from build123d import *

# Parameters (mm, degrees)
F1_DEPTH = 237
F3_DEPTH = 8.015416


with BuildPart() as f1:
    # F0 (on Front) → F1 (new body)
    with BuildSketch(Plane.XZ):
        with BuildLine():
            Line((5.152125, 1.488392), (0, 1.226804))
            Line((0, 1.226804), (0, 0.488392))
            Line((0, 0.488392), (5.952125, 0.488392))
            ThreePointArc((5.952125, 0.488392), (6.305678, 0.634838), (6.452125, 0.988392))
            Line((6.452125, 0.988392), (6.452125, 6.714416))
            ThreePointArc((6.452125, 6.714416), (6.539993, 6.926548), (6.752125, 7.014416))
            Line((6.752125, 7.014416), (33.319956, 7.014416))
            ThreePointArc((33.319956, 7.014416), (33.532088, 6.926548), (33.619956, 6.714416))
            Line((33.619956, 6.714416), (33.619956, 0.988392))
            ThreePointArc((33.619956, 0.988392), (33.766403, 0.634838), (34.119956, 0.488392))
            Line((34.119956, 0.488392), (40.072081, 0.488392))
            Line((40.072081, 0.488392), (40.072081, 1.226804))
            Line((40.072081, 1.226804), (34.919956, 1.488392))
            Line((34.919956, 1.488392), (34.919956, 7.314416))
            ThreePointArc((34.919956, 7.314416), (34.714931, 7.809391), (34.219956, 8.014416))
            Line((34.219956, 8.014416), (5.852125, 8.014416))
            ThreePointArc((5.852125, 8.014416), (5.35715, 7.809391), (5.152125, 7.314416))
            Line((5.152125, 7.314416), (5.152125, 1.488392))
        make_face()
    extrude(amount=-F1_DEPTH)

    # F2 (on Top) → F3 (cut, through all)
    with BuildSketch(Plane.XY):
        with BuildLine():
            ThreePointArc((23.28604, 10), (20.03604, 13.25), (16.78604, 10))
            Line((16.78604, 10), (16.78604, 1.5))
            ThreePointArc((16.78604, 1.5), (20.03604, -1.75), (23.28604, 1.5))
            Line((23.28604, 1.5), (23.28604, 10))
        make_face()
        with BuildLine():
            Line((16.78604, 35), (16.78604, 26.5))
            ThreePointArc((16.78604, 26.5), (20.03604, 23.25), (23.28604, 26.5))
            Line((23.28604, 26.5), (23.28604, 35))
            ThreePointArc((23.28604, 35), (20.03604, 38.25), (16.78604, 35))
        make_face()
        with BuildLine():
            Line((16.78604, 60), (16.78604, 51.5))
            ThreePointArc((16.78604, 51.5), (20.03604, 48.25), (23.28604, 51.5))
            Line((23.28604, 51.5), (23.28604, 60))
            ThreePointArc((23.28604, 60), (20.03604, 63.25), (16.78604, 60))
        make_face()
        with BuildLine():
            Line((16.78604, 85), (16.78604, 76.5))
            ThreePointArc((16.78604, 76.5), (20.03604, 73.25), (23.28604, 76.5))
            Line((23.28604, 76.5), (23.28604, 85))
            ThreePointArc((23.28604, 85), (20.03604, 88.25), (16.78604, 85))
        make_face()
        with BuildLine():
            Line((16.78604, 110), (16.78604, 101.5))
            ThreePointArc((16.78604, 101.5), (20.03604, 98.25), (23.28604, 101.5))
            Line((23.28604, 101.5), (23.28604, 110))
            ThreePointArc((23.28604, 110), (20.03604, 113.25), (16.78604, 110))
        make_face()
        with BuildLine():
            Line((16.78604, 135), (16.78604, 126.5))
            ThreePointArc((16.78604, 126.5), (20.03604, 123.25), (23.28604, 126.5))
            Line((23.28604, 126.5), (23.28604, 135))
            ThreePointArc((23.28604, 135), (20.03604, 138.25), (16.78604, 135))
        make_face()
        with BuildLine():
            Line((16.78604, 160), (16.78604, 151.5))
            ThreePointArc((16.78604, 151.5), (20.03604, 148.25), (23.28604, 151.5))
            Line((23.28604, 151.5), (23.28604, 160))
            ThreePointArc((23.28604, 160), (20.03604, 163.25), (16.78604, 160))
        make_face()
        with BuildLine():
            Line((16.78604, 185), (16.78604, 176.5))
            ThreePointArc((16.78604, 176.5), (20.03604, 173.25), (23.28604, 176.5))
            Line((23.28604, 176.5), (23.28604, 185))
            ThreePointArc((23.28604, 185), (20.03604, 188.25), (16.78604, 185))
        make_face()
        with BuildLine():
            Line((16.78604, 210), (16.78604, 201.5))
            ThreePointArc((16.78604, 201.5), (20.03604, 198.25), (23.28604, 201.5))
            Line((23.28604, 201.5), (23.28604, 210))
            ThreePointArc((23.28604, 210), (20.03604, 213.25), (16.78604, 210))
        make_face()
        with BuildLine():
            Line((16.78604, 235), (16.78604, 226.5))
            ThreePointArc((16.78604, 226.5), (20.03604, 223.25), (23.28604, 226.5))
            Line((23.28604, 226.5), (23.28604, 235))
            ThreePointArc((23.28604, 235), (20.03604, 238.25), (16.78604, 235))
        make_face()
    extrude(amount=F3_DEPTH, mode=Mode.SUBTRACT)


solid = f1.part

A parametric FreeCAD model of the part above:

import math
import FreeCAD as App
import Part
import Sketcher

V = App.Vector
Q = App.Units.Quantity

doc = App.newDocument("Part")
body = doc.addObject("PartDesign::Body", "Body")

sketch1 = body.newObject("Sketcher::SketchObject", "Sketch")
sketch1.AttachmentSupport = (doc.getObject("XZ_Plane"), [""])
sketch1.MapMode = "FlatFace"
sketch1.addGeometry(Part.LineSegment(V(5.15, 1.49, 0), V(0, 1.23, 0)), False)
sketch1.addGeometry(Part.LineSegment(V(0, 1.23, 0), V(0, 0.49, 0)), False)
sketch1.addGeometry(Part.LineSegment(V(0, 0.49, 0), V(5.95, 0.49, 0)), False)
sketch1.addGeometry(Part.ArcOfCircle(Part.Circle(V(5.95, 0.99, 0), V(0, 0, 1), 0.5), math.radians(-90), math.radians(0)), False)
sketch1.addGeometry(Part.LineSegment(V(6.45, 0.99, 0), V(6.45, 6.71, 0)), False)
sketch1.addGeometry(Part.ArcOfCircle(Part.Circle(V(6.75, 6.71, 0), V(0, 0, 1), 0.3), math.radians(90), math.radians(180)), False)
sketch1.addGeometry(Part.LineSegment(V(6.75, 7.01, 0), V(33.32, 7.01, 0)), False)
sketch1.addGeometry(Part.ArcOfCircle(Part.Circle(V(33.32, 6.71, 0), V(0, 0, 1), 0.3), math.radians(0), math.radians(90)), False)
sketch1.addGeometry(Part.LineSegment(V(33.62, 6.71, 0), V(33.62, 0.99, 0)), False)
sketch1.addGeometry(Part.ArcOfCircle(Part.Circle(V(34.12, 0.99, 0), V(0, 0, 1), 0.5), math.radians(180), math.radians(270)), False)
sketch1.addGeometry(Part.LineSegment(V(34.12, 0.49, 0), V(40.07, 0.49, 0)), False)
sketch1.addGeometry(Part.LineSegment(V(40.07, 0.49, 0), V(40.07, 1.23, 0)), False)
sketch1.addGeometry(Part.LineSegment(V(40.07, 1.23, 0), V(34.92, 1.49, 0)), False)
sketch1.addGeometry(Part.LineSegment(V(34.92, 1.49, 0), V(34.92, 7.31, 0)), False)
sketch1.addGeometry(Part.ArcOfCircle(Part.Circle(V(34.22, 7.31, 0), V(0, 0, 1), 0.7), math.radians(0), math.radians(90)), False)
sketch1.addGeometry(Part.LineSegment(V(34.22, 8.01, 0), V(5.85, 8.01, 0)), False)
sketch1.addGeometry(Part.ArcOfCircle(Part.Circle(V(5.85, 7.31, 0), V(0, 0, 1), 0.7), math.radians(90), math.radians(180)), False)
sketch1.addGeometry(Part.LineSegment(V(5.15, 7.31, 0), V(5.15, 1.49, 0)), False)
sketch1.addConstraint(Sketcher.Constraint("Coincident", 0, 2, 1, 1))
sketch1.addConstraint(Sketcher.Constraint("Coincident", 1, 2, 2, 1))
sketch1.addConstraint(Sketcher.Constraint("Tangent", 2, 2, 3, 1))
sketch1.addConstraint(Sketcher.Constraint("Tangent", 3, 2, 4, 1))
sketch1.addConstraint(Sketcher.Constraint("Tangent", 4, 2, 5, 2))
sketch1.addConstraint(Sketcher.Constraint("Tangent", 5, 1, 6, 1))
sketch1.addConstraint(Sketcher.Constraint("Tangent", 6, 2, 7, 2))
sketch1.addConstraint(Sketcher.Constraint("Tangent", 7, 1, 8, 1))
sketch1.addConstraint(Sketcher.Constraint("Tangent", 8, 2, 9, 1))
sketch1.addConstraint(Sketcher.Constraint("Tangent", 9, 2, 10, 1))
sketch1.addConstraint(Sketcher.Constraint("Coincident", 10, 2, 11, 1))
sketch1.addConstraint(Sketcher.Constraint("Coincident", 11, 2, 12, 1))
sketch1.addConstraint(Sketcher.Constraint("Coincident", 12, 2, 13, 1))
sketch1.addConstraint(Sketcher.Constraint("Tangent", 13, 2, 14, 1))
sketch1.addConstraint(Sketcher.Constraint("Tangent", 14, 2, 15, 1))
sketch1.addConstraint(Sketcher.Constraint("Tangent", 15, 2, 16, 1))
sketch1.addConstraint(Sketcher.Constraint("Tangent", 16, 2, 17, 1))
sketch1.addConstraint(Sketcher.Constraint("Coincident", 17, 2, 0, 1))
sketch1.addConstraint(Sketcher.Constraint("Vertical", 1))
sketch1.addConstraint(Sketcher.Constraint("Horizontal", 2))
sketch1.addConstraint(Sketcher.Constraint("Vertical", 4))
sketch1.addConstraint(Sketcher.Constraint("Horizontal", 6))
sketch1.addConstraint(Sketcher.Constraint("Vertical", 8))
sketch1.addConstraint(Sketcher.Constraint("Horizontal", 10))
sketch1.addConstraint(Sketcher.Constraint("Vertical", 11))
sketch1.addConstraint(Sketcher.Constraint("Vertical", 13))
sketch1.addConstraint(Sketcher.Constraint("Horizontal", 15))
sketch1.addConstraint(Sketcher.Constraint("Vertical", 17))
sketch1.addConstraint(Sketcher.Constraint("Equal", 5, 7))
sketch1.addConstraint(Sketcher.Constraint("Equal", 3, 9))
sketch1.addConstraint(Sketcher.Constraint("Equal", 14, 16))
sketch1.addConstraint(Sketcher.Constraint("PointOnObject", 0, 2, -2))
sketch1.addConstraint(Sketcher.Constraint("Horizontal", 3, 3, 9, 3))
sketch1.addConstraint(Sketcher.Constraint("Horizontal", 0, 2, 11, 2))
sketch1.addConstraint(Sketcher.Constraint("Horizontal", 12, 2, 17, 2))
sketch1.addConstraint(Sketcher.Constraint("Equal", 2, 10))
sketch1.addConstraint(Sketcher.Constraint("Equal", 0, 12))
sketch1.addConstraint(Sketcher.Constraint("Radius", 3, Q("0.5 mm")))
sketch1.addConstraint(Sketcher.Constraint("Radius", 5, Q("0.3 mm")))
sketch1.addConstraint(Sketcher.Constraint("Radius", 14, Q("0.699999 mm")))
sketch1.addConstraint(Sketcher.Constraint("DistanceY", 9, 2, 12, 2, Q("1 mm")))
sketch1.addConstraint(Sketcher.Constraint("DistanceY", 6, 2, 14, 2, Q("1 mm")))
sketch1.addConstraint(Sketcher.Constraint("DistanceX", 7, 3, 14, 3, Q("0.900001 mm")))
sketch1.addConstraint(Sketcher.Constraint("DistanceX", 6, 1, 6, 2, Q("26.567831 mm")))
sketch1.addConstraint(Sketcher.Constraint("Distance", 0, Q("5.158762 mm")))
sketch1.addConstraint(Sketcher.Constraint("DistanceX", 2, 1, 2, 2, Q("5.952125 mm")))
sketch1.addConstraint(Sketcher.Constraint("DistanceY", 4, 1, 4, 2, Q("5.726024 mm")))
sketch1.addConstraint(Sketcher.Constraint("DistanceY", -1, 1, 3, 3, Q("0.988392 mm")))
pad1 = body.newObject("PartDesign::Pad", "Pad")
pad1.Profile = sketch1
pad1.Length = 237
pad1.Reversed = True

sketch2 = body.newObject("Sketcher::SketchObject", "Sketch001")
sketch2.AttachmentSupport = (doc.getObject("XY_Plane"), [""])
sketch2.MapMode = "FlatFace"
sketch2.addGeometry(Part.ArcOfCircle(Part.Circle(V(20, 10, 0), V(0, 0, 1), 3.2), math.radians(0), math.radians(180)), False)
sketch2.addGeometry(Part.LineSegment(V(16.8, 10, 0), V(16.8, 1.5, 0)), False)
sketch2.addGeometry(Part.ArcOfCircle(Part.Circle(V(20, 1.5, 0), V(0, 0, 1), 3.2), math.radians(180), math.radians(360)), False)
sketch2.addGeometry(Part.LineSegment(V(23.3, 1.5, 0), V(23.3, 10, 0)), False)
sketch2.addGeometry(Part.LineSegment(V(16.8, 35, 0), V(16.8, 26.5, 0)), False)
sketch2.addGeometry(Part.ArcOfCircle(Part.Circle(V(20, 26.5, 0), V(0, 0, 1), 3.2), math.radians(180), math.radians(360)), False)
sketch2.addGeometry(Part.LineSegment(V(23.3, 26.5, 0), V(23.3, 35, 0)), False)
sketch2.addGeometry(Part.ArcOfCircle(Part.Circle(V(20, 35, 0), V(0, 0, 1), 3.2), math.radians(0), math.radians(180)), False)
sketch2.addGeometry(Part.LineSegment(V(16.8, 60, 0), V(16.8, 51.5, 0)), False)
sketch2.addGeometry(Part.ArcOfCircle(Part.Circle(V(20, 51.5, 0), V(0, 0, 1), 3.2), math.radians(180), math.radians(360)), False)
sketch2.addGeometry(Part.LineSegment(V(23.3, 51.5, 0), V(23.3, 60, 0)), False)
sketch2.addGeometry(Part.ArcOfCircle(Part.Circle(V(20, 60, 0), V(0, 0, 1), 3.2), math.radians(0), math.radians(180)), False)
sketch2.addGeometry(Part.LineSegment(V(16.8, 85, 0), V(16.8, 76.5, 0)), False)
sketch2.addGeometry(Part.ArcOfCircle(Part.Circle(V(20, 76.5, 0), V(0, 0, 1), 3.2), math.radians(180), math.radians(360)), False)
sketch2.addGeometry(Part.LineSegment(V(23.3, 76.5, 0), V(23.3, 85, 0)), False)
sketch2.addGeometry(Part.ArcOfCircle(Part.Circle(V(20, 85, 0), V(0, 0, 1), 3.2), math.radians(0), math.radians(180)), False)
sketch2.addGeometry(Part.LineSegment(V(16.8, 110, 0), V(16.8, 101.5, 0)), False)
sketch2.addGeometry(Part.ArcOfCircle(Part.Circle(V(20, 101.5, 0), V(0, 0, 1), 3.2), math.radians(180), math.radians(360)), False)
sketch2.addGeometry(Part.LineSegment(V(23.3, 101.5, 0), V(23.3, 110, 0)), False)
sketch2.addGeometry(Part.ArcOfCircle(Part.Circle(V(20, 110, 0), V(0, 0, 1), 3.2), math.radians(0), math.radians(180)), False)
sketch2.addGeometry(Part.LineSegment(V(16.8, 135, 0), V(16.8, 126.5, 0)), False)
sketch2.addGeometry(Part.ArcOfCircle(Part.Circle(V(20, 126.5, 0), V(0, 0, 1), 3.2), math.radians(180), math.radians(360)), False)
sketch2.addGeometry(Part.LineSegment(V(23.3, 126.5, 0), V(23.3, 135, 0)), False)
sketch2.addGeometry(Part.ArcOfCircle(Part.Circle(V(20, 135, 0), V(0, 0, 1), 3.2), math.radians(0), math.radians(180)), False)
sketch2.addGeometry(Part.LineSegment(V(16.8, 160, 0), V(16.8, 151.5, 0)), False)
sketch2.addGeometry(Part.ArcOfCircle(Part.Circle(V(20, 151.5, 0), V(0, 0, 1), 3.2), math.radians(180), math.radians(360)), False)
sketch2.addGeometry(Part.LineSegment(V(23.3, 151.5, 0), V(23.3, 160, 0)), False)
sketch2.addGeometry(Part.ArcOfCircle(Part.Circle(V(20, 160, 0), V(0, 0, 1), 3.2), math.radians(0), math.radians(180)), False)
sketch2.addGeometry(Part.LineSegment(V(16.8, 185, 0), V(16.8, 176.5, 0)), False)
sketch2.addGeometry(Part.ArcOfCircle(Part.Circle(V(20, 176.5, 0), V(0, 0, 1), 3.2), math.radians(180), math.radians(360)), False)
sketch2.addGeometry(Part.LineSegment(V(23.3, 176.5, 0), V(23.3, 185, 0)), False)
sketch2.addGeometry(Part.ArcOfCircle(Part.Circle(V(20, 185, 0), V(0, 0, 1), 3.2), math.radians(0), math.radians(180)), False)
sketch2.addGeometry(Part.LineSegment(V(16.8, 210, 0), V(16.8, 201.5, 0)), False)
sketch2.addGeometry(Part.ArcOfCircle(Part.Circle(V(20, 201.5, 0), V(0, 0, 1), 3.2), math.radians(180), math.radians(360)), False)
sketch2.addGeometry(Part.LineSegment(V(23.3, 201.5, 0), V(23.3, 210, 0)), False)
sketch2.addGeometry(Part.ArcOfCircle(Part.Circle(V(20, 210, 0), V(0, 0, 1), 3.2), math.radians(0), math.radians(180)), False)
sketch2.addGeometry(Part.LineSegment(V(16.8, 235, 0), V(16.8, 226.5, 0)), False)
sketch2.addGeometry(Part.ArcOfCircle(Part.Circle(V(20, 226.5, 0), V(0, 0, 1), 3.2), math.radians(180), math.radians(360)), False)
sketch2.addGeometry(Part.LineSegment(V(23.3, 226.5, 0), V(23.3, 235, 0)), False)
sketch2.addGeometry(Part.ArcOfCircle(Part.Circle(V(20, 235, 0), V(0, 0, 1), 3.2), math.radians(0), math.radians(180)), False)
sketch2.addConstraint(Sketcher.Constraint("Tangent", 0, 2, 1, 1))
sketch2.addConstraint(Sketcher.Constraint("Tangent", 1, 2, 2, 1))
sketch2.addConstraint(Sketcher.Constraint("Tangent", 2, 2, 3, 1))
sketch2.addConstraint(Sketcher.Constraint("Tangent", 3, 2, 0, 1))
sketch2.addConstraint(Sketcher.Constraint("Tangent", 4, 2, 5, 1))
sketch2.addConstraint(Sketcher.Constraint("Tangent", 5, 2, 6, 1))
sketch2.addConstraint(Sketcher.Constraint("Tangent", 6, 2, 7, 1))
sketch2.addConstraint(Sketcher.Constraint("Tangent", 7, 2, 4, 1))
sketch2.addConstraint(Sketcher.Constraint("Tangent", 8, 2, 9, 1))
sketch2.addConstraint(Sketcher.Constraint("Tangent", 9, 2, 10, 1))
sketch2.addConstraint(Sketcher.Constraint("Tangent", 10, 2, 11, 1))
sketch2.addConstraint(Sketcher.Constraint("Tangent", 11, 2, 8, 1))
sketch2.addConstraint(Sketcher.Constraint("Tangent", 12, 2, 13, 1))
sketch2.addConstraint(Sketcher.Constraint("Tangent", 13, 2, 14, 1))
sketch2.addConstraint(Sketcher.Constraint("Tangent", 14, 2, 15, 1))
sketch2.addConstraint(Sketcher.Constraint("Tangent", 15, 2, 12, 1))
sketch2.addConstraint(Sketcher.Constraint("Tangent", 16, 2, 17, 1))
sketch2.addConstraint(Sketcher.Constraint("Tangent", 17, 2, 18, 1))
sketch2.addConstraint(Sketcher.Constraint("Tangent", 18, 2, 19, 1))
sketch2.addConstraint(Sketcher.Constraint("Tangent", 19, 2, 16, 1))
sketch2.addConstraint(Sketcher.Constraint("Tangent", 20, 2, 21, 1))
sketch2.addConstraint(Sketcher.Constraint("Tangent", 21, 2, 22, 1))
sketch2.addConstraint(Sketcher.Constraint("Tangent", 22, 2, 23, 1))
sketch2.addConstraint(Sketcher.Constraint("Tangent", 23, 2, 20, 1))
sketch2.addConstraint(Sketcher.Constraint("Tangent", 24, 2, 25, 1))
sketch2.addConstraint(Sketcher.Constraint("Tangent", 25, 2, 26, 1))
sketch2.addConstraint(Sketcher.Constraint("Tangent", 26, 2, 27, 1))
sketch2.addConstraint(Sketcher.Constraint("Tangent", 27, 2, 24, 1))
sketch2.addConstraint(Sketcher.Constraint("Tangent", 28, 2, 29, 1))
sketch2.addConstraint(Sketcher.Constraint("Tangent", 29, 2, 30, 1))
sketch2.addConstraint(Sketcher.Constraint("Tangent", 30, 2, 31, 1))
sketch2.addConstraint(Sketcher.Constraint("Tangent", 31, 2, 28, 1))
sketch2.addConstraint(Sketcher.Constraint("Tangent", 32, 2, 33, 1))
sketch2.addConstraint(Sketcher.Constraint("Tangent", 33, 2, 34, 1))
sketch2.addConstraint(Sketcher.Constraint("Tangent", 34, 2, 35, 1))
sketch2.addConstraint(Sketcher.Constraint("Tangent", 35, 2, 32, 1))
sketch2.addConstraint(Sketcher.Constraint("Tangent", 36, 2, 37, 1))
sketch2.addConstraint(Sketcher.Constraint("Tangent", 37, 2, 38, 1))
sketch2.addConstraint(Sketcher.Constraint("Tangent", 38, 2, 39, 1))
sketch2.addConstraint(Sketcher.Constraint("Tangent", 39, 2, 36, 1))
sketch2.addConstraint(Sketcher.Constraint("Vertical", 1))
sketch2.addConstraint(Sketcher.Constraint("Vertical", 3))
sketch2.addConstraint(Sketcher.Constraint("Vertical", 4))
sketch2.addConstraint(Sketcher.Constraint("Vertical", 6))
sketch2.addConstraint(Sketcher.Constraint("Vertical", 8))
sketch2.addConstraint(Sketcher.Constraint("Vertical", 10))
sketch2.addConstraint(Sketcher.Constraint("Vertical", 12))
sketch2.addConstraint(Sketcher.Constraint("Vertical", 14))
sketch2.addConstraint(Sketcher.Constraint("Vertical", 16))
sketch2.addConstraint(Sketcher.Constraint("Vertical", 18))
sketch2.addConstraint(Sketcher.Constraint("Vertical", 20))
sketch2.addConstraint(Sketcher.Constraint("Vertical", 22))
sketch2.addConstraint(Sketcher.Constraint("Vertical", 24))
sketch2.addConstraint(Sketcher.Constraint("Vertical", 26))
sketch2.addConstraint(Sketcher.Constraint("Vertical", 28))
sketch2.addConstraint(Sketcher.Constraint("Vertical", 30))
sketch2.addConstraint(Sketcher.Constraint("Vertical", 32))
sketch2.addConstraint(Sketcher.Constraint("Vertical", 34))
sketch2.addConstraint(Sketcher.Constraint("Vertical", 36))
sketch2.addConstraint(Sketcher.Constraint("Vertical", 38))
sketch2.addConstraint(Sketcher.Constraint("Equal", 2, 5))
sketch2.addConstraint(Sketcher.Constraint("Equal", 7, 9))
sketch2.addConstraint(Sketcher.Constraint("Equal", 11, 13))
sketch2.addConstraint(Sketcher.Constraint("Equal", 15, 17))
sketch2.addConstraint(Sketcher.Constraint("Equal", 19, 21))
sketch2.addConstraint(Sketcher.Constraint("Equal", 23, 25))
sketch2.addConstraint(Sketcher.Constraint("Equal", 27, 29))
sketch2.addConstraint(Sketcher.Constraint("Equal", 31, 33))
sketch2.addConstraint(Sketcher.Constraint("Equal", 35, 37))
sketch2.addConstraint(Sketcher.Constraint("Vertical", 2, 3, 5, 3))
sketch2.addConstraint(Sketcher.Constraint("Vertical", 7, 3, 9, 3))
sketch2.addConstraint(Sketcher.Constraint("Vertical", 11, 3, 13, 3))
sketch2.addConstraint(Sketcher.Constraint("Vertical", 15, 3, 17, 3))
sketch2.addConstraint(Sketcher.Constraint("Vertical", 19, 3, 21, 3))
sketch2.addConstraint(Sketcher.Constraint("Vertical", 23, 3, 25, 3))
sketch2.addConstraint(Sketcher.Constraint("Vertical", 27, 3, 29, 3))
sketch2.addConstraint(Sketcher.Constraint("Vertical", 31, 3, 33, 3))
sketch2.addConstraint(Sketcher.Constraint("Vertical", 35, 3, 37, 3))
sketch2.addConstraint(Sketcher.Constraint("Equal", 3, 4))
sketch2.addConstraint(Sketcher.Constraint("Equal", 6, 8))
sketch2.addConstraint(Sketcher.Constraint("Equal", 10, 12))
sketch2.addConstraint(Sketcher.Constraint("Equal", 14, 16))
sketch2.addConstraint(Sketcher.Constraint("Equal", 18, 20))
sketch2.addConstraint(Sketcher.Constraint("Equal", 22, 24))
sketch2.addConstraint(Sketcher.Constraint("Equal", 26, 28))
sketch2.addConstraint(Sketcher.Constraint("Equal", 30, 32))
sketch2.addConstraint(Sketcher.Constraint("Equal", 34, 36))
sketch2.addConstraint(Sketcher.Constraint("Radius", 0, Q("3.25 mm")))
sketch2.addConstraint(Sketcher.Constraint("DistanceY", 1, 2, 1, 1, Q("8.5 mm")))
sketch2.addConstraint(Sketcher.Constraint("DistanceY", -1, 1, 0, 3, Q("10 mm")))
sketch2.addConstraint(Sketcher.Constraint("DistanceY", -1, 1, 7, 3, Q("35 mm")))
sketch2.addConstraint(Sketcher.Constraint("DistanceY", -1, 1, 11, 3, Q("60 mm")))
sketch2.addConstraint(Sketcher.Constraint("DistanceY", -1, 1, 15, 3, Q("85 mm")))
sketch2.addConstraint(Sketcher.Constraint("DistanceY", -1, 1, 19, 3, Q("110 mm")))
sketch2.addConstraint(Sketcher.Constraint("DistanceY", -1, 1, 23, 3, Q("135 mm")))
sketch2.addConstraint(Sketcher.Constraint("DistanceY", -1, 1, 27, 3, Q("160 mm")))
sketch2.addConstraint(Sketcher.Constraint("DistanceY", -1, 1, 31, 3, Q("185 mm")))
sketch2.addConstraint(Sketcher.Constraint("DistanceY", -1, 1, 35, 3, Q("210 mm")))
sketch2.addConstraint(Sketcher.Constraint("DistanceY", -1, 1, 39, 3, Q("235 mm")))
sketch2.addConstraint(Sketcher.Constraint("DistanceX", -1, 1, 0, 3, Q("20.03604 mm")))
pocket1 = body.newObject("PartDesign::Pocket", "Pocket")
pocket1.Profile = sketch2
pocket1.Type = "ThroughAll"
pocket1.Reversed = True

doc.recompute()
